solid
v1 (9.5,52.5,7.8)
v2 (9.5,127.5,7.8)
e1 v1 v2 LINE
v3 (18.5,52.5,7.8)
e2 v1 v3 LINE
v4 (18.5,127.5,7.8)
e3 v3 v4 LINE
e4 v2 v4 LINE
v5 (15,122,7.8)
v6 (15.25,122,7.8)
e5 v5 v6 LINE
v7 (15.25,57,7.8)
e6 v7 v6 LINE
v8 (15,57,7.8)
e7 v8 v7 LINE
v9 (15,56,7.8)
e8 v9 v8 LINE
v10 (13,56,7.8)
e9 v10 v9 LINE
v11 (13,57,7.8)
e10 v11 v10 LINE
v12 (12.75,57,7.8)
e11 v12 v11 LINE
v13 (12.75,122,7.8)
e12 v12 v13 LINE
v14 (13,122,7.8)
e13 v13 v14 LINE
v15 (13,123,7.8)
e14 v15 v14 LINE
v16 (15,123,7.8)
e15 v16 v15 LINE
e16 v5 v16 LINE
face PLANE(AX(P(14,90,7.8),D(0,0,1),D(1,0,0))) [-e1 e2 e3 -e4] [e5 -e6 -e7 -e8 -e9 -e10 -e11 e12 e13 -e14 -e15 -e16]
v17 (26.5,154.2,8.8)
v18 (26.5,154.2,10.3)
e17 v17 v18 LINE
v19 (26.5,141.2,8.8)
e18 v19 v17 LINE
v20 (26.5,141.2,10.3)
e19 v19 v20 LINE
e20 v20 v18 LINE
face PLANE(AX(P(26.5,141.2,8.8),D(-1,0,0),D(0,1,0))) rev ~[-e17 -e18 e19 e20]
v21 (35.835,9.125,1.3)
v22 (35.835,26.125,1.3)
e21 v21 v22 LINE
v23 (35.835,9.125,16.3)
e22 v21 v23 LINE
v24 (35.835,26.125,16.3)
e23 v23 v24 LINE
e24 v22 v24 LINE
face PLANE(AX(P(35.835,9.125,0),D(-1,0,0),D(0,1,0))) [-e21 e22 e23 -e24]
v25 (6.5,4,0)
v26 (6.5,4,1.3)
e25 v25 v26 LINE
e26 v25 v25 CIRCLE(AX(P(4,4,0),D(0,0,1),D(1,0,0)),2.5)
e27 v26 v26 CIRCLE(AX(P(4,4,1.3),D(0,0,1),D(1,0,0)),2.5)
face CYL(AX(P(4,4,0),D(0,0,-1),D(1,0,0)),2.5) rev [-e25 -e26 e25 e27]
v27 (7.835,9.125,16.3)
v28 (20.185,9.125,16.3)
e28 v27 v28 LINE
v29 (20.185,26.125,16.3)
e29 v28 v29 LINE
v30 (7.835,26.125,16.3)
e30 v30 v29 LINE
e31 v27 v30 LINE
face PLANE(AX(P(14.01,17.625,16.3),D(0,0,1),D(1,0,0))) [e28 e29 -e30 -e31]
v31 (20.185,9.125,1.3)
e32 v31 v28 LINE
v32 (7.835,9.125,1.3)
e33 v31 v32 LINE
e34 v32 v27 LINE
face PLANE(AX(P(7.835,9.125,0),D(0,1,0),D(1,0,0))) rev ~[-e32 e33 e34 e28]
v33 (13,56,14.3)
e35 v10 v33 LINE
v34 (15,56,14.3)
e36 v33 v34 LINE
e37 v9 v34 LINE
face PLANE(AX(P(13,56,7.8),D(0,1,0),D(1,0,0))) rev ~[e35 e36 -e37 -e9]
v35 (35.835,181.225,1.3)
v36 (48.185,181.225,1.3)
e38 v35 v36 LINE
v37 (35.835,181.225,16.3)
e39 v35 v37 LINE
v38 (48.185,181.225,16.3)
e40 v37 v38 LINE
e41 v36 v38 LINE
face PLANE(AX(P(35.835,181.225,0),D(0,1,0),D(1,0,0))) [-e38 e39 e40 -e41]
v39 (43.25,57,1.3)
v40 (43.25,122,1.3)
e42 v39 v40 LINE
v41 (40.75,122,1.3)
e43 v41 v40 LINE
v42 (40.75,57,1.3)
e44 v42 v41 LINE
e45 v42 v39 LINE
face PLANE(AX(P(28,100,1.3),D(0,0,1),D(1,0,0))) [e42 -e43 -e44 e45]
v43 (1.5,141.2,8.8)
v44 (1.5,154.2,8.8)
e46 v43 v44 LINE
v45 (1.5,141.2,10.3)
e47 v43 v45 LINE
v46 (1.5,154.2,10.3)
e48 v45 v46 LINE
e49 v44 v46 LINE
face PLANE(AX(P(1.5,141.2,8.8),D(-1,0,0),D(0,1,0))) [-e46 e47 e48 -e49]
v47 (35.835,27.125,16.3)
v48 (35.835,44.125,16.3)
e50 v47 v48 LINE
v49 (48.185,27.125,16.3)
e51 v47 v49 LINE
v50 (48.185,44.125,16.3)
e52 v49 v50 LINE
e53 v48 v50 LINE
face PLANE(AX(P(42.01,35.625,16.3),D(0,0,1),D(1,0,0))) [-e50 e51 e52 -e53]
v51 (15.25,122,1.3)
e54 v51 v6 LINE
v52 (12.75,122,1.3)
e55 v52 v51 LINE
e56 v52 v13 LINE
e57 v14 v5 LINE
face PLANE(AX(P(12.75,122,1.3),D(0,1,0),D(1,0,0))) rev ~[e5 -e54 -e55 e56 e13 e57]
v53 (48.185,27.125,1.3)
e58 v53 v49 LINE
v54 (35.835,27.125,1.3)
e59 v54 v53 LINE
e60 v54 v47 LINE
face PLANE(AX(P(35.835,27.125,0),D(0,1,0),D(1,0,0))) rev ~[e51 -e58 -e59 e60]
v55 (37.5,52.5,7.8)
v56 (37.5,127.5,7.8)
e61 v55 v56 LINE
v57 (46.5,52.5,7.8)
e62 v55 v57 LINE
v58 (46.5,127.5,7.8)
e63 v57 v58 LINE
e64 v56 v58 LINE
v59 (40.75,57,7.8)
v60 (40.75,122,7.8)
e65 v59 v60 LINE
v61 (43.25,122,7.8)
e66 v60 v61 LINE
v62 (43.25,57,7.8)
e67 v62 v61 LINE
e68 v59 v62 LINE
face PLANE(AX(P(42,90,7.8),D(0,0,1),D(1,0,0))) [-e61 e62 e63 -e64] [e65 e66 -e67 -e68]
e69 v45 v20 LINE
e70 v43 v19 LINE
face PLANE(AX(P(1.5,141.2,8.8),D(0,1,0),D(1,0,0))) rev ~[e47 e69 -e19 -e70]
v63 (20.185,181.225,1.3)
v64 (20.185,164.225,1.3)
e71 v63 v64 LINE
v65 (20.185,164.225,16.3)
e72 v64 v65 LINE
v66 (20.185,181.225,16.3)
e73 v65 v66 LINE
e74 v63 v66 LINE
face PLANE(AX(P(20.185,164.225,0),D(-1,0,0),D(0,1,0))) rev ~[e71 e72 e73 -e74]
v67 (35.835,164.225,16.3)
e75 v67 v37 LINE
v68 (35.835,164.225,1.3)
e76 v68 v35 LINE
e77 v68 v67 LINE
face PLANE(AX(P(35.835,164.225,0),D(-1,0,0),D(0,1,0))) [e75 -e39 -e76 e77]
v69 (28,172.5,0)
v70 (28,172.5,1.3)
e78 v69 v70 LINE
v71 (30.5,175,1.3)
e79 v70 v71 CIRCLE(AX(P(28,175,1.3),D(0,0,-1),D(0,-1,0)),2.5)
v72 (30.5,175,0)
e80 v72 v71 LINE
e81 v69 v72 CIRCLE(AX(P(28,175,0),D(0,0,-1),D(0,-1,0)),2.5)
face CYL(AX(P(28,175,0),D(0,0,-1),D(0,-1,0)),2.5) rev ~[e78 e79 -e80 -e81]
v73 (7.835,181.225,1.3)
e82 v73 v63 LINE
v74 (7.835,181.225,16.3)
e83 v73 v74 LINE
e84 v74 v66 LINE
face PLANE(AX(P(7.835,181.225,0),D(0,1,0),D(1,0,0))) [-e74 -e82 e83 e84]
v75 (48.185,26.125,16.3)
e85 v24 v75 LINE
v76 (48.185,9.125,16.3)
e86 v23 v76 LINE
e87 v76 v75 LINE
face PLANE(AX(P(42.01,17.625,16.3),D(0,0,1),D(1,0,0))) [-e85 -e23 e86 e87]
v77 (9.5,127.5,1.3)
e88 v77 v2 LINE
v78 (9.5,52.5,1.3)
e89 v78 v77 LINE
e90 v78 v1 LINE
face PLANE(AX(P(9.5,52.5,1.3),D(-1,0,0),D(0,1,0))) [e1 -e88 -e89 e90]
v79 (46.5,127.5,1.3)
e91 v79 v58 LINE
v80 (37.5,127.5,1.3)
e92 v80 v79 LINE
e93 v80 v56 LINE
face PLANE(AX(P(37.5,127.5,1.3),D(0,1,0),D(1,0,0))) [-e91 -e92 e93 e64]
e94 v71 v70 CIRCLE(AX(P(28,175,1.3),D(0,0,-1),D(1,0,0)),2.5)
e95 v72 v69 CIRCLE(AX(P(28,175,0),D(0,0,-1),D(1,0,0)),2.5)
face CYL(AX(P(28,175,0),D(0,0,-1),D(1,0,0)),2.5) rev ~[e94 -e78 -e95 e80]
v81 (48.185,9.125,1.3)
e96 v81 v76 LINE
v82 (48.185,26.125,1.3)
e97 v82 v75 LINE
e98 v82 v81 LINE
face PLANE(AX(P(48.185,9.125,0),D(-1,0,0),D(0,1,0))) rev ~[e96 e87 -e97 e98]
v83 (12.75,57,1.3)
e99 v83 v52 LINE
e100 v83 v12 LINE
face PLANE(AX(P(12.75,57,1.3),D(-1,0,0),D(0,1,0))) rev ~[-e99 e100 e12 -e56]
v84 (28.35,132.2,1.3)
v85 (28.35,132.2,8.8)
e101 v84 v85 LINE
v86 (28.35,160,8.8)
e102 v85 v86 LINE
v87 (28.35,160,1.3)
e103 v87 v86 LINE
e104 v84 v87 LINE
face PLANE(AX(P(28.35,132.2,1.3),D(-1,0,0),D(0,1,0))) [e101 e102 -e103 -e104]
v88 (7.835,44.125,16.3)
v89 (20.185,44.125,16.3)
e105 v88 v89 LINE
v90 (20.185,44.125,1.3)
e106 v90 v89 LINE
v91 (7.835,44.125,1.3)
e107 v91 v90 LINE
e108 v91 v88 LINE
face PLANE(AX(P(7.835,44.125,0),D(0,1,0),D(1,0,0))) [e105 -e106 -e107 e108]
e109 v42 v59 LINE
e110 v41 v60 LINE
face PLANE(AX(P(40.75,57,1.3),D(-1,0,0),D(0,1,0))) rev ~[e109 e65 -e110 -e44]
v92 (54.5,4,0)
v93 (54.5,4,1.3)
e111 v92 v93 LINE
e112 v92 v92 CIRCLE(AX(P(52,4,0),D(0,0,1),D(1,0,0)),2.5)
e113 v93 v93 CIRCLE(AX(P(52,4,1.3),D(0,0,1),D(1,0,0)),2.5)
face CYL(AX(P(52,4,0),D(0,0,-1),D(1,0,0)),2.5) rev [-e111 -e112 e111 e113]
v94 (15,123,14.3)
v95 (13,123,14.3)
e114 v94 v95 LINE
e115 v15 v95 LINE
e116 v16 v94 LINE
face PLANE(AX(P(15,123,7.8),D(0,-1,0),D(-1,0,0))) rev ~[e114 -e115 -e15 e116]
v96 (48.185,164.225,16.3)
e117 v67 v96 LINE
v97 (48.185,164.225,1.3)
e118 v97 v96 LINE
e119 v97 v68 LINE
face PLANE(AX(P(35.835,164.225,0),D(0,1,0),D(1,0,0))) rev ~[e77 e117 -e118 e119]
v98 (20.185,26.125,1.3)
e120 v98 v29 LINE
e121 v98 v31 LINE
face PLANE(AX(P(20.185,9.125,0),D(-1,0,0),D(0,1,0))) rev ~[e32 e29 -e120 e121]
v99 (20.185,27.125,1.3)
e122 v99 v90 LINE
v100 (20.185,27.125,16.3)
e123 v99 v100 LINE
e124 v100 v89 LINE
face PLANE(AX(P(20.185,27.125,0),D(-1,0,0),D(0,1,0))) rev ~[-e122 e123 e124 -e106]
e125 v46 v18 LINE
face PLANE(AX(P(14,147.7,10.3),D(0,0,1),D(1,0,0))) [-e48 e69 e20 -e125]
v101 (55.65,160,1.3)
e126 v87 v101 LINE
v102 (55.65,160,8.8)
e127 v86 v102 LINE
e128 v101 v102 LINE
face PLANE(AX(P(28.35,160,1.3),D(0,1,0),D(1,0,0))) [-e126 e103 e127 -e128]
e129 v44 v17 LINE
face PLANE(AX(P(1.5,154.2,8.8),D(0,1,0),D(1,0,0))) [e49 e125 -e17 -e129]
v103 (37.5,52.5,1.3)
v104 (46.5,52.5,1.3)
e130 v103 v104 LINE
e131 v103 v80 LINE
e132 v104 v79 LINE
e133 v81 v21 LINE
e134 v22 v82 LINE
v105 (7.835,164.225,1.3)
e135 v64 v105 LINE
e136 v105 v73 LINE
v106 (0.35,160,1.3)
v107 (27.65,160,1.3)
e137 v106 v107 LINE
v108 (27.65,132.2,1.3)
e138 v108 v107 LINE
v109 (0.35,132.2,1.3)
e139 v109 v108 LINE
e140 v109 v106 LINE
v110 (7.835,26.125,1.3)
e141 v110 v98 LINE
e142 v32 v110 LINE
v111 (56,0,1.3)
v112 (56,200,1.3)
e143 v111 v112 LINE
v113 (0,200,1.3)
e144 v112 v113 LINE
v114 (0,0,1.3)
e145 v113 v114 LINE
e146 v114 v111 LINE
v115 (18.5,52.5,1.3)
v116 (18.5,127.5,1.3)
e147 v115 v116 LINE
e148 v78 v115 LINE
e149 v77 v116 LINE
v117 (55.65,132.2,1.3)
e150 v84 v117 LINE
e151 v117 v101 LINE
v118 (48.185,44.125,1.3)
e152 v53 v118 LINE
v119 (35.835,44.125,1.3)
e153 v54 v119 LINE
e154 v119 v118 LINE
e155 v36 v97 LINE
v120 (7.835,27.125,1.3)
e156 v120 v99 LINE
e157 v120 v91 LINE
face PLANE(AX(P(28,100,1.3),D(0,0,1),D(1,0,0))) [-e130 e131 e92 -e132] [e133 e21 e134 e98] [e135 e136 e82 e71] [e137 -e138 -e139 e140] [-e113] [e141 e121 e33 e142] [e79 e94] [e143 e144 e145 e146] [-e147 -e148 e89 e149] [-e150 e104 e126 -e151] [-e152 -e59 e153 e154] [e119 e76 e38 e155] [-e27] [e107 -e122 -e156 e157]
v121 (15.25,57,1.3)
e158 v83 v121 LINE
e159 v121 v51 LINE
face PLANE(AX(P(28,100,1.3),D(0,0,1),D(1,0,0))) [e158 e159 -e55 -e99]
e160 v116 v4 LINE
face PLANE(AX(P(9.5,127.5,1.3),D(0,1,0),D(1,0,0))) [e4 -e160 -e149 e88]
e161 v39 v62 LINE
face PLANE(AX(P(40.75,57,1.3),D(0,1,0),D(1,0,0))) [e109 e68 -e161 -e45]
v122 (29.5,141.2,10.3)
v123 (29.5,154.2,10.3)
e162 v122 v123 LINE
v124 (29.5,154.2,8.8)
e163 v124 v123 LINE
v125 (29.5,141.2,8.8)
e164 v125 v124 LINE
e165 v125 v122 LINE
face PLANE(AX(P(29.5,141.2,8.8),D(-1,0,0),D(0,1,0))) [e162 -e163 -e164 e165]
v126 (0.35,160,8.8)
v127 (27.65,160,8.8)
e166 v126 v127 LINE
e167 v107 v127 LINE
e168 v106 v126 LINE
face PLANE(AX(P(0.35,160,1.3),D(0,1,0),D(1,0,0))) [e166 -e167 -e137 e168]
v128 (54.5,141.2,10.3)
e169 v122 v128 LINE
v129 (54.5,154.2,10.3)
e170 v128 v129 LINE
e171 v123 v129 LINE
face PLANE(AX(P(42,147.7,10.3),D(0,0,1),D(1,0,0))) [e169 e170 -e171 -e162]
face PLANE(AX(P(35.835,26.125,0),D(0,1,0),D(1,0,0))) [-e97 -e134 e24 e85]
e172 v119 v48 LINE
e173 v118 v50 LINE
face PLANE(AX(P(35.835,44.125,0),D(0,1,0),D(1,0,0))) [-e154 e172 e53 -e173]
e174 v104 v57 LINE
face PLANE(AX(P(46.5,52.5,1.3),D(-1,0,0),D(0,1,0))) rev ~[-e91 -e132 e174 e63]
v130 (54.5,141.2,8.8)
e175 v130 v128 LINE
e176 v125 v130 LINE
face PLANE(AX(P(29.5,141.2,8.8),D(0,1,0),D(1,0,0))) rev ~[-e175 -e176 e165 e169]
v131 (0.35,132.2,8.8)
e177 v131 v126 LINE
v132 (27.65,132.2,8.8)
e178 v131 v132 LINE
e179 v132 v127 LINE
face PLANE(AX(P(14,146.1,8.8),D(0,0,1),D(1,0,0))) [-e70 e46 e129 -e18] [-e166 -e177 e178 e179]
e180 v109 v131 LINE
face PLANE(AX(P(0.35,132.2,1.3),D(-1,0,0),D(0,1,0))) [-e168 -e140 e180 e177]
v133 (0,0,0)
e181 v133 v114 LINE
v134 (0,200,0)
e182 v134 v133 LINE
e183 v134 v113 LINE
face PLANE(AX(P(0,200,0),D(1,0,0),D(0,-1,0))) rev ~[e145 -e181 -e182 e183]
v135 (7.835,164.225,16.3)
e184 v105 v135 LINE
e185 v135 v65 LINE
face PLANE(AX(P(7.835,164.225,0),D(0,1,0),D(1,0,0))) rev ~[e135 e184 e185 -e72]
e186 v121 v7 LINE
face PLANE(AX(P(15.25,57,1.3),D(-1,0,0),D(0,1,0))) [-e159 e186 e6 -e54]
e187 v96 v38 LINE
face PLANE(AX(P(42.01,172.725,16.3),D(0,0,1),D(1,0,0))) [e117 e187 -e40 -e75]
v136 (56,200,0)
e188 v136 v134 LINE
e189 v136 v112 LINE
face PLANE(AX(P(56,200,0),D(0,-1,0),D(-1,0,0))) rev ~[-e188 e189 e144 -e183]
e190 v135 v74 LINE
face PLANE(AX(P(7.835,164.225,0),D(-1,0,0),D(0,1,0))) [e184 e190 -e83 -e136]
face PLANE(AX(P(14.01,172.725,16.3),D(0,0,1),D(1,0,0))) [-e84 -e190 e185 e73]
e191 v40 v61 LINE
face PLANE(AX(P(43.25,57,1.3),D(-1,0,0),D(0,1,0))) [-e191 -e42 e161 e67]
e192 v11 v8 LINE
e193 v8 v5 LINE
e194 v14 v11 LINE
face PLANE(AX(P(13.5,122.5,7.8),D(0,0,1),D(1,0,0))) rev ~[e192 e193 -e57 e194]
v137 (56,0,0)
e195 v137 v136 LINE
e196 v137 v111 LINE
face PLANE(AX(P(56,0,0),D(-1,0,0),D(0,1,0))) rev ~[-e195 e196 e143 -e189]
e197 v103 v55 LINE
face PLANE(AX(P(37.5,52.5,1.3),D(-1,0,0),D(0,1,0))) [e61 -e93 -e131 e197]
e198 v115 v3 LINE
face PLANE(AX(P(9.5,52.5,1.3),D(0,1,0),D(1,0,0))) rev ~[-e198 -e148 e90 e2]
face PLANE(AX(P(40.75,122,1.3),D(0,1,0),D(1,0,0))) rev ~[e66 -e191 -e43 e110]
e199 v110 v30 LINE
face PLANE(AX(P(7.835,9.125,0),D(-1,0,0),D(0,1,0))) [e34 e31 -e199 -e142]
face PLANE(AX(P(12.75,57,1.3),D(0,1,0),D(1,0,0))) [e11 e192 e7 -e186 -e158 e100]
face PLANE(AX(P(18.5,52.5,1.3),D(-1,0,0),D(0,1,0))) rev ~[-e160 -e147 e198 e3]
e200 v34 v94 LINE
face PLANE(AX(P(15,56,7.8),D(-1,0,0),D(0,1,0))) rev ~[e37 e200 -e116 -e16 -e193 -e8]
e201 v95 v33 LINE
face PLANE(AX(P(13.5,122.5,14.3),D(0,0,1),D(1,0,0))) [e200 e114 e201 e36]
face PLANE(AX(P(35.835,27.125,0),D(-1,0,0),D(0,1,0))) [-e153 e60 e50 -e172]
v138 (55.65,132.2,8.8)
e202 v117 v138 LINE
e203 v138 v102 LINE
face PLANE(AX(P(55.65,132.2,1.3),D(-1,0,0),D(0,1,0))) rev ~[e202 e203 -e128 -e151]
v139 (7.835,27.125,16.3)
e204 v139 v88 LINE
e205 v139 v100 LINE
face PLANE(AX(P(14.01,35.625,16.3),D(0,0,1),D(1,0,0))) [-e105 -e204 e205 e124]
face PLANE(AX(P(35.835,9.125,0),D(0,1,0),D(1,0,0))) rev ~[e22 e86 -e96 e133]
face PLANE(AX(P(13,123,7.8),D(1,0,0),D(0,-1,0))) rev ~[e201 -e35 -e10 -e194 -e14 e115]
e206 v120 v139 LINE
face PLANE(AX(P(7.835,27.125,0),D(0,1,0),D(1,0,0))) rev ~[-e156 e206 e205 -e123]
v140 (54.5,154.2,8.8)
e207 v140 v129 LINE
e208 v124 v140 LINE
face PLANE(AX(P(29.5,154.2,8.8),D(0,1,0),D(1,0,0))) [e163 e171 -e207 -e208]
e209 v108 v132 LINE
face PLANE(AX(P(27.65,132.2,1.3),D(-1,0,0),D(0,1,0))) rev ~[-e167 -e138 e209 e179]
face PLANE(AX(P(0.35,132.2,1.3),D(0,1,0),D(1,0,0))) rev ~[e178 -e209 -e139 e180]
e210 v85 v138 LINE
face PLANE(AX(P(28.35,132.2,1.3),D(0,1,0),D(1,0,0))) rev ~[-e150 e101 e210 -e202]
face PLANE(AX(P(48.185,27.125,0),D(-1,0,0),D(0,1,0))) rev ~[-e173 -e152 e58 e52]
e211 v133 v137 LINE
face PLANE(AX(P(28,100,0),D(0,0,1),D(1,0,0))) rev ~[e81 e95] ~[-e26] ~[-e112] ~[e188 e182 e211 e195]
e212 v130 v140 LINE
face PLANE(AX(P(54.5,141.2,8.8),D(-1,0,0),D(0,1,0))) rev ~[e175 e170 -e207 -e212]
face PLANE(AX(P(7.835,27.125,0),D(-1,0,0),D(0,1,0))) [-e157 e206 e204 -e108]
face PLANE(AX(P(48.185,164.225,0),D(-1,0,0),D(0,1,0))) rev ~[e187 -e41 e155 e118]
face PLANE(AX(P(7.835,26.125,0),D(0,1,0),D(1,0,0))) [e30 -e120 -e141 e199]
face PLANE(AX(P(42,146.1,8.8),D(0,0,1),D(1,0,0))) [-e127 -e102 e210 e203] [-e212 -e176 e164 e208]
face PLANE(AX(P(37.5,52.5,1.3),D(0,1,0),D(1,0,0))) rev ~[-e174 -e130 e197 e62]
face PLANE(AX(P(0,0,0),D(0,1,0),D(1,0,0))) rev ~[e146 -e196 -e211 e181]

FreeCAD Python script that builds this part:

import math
import FreeCAD as App
import Part
import Sketcher

doc = App.newDocument("Part")
body = doc.addObject("PartDesign::Body", "Body")

sketch1 = body.newObject("Sketcher::SketchObject", "Sketch")
sketch1.AttachmentSupport = (doc.getObject("XY_Plane"), [""])
sketch1.MapMode = "FlatFace"
sketch1.addGeometry([
    Part.LineSegment(App.Vector(0, 200, 0), App.Vector(0, 0, 0)),
    Part.LineSegment(App.Vector(0, 0, 0), App.Vector(56, 0, 0)),
    Part.LineSegment(App.Vector(56, 0, 0), App.Vector(56, 200, 0)),
    Part.LineSegment(App.Vector(56, 200, 0), App.Vector(0, 200, 0)),
    Part.Circle(App.Vector(4, 4, 0), App.Vector(0, 0, 1), 2.5),
    Part.LineSegment(App.Vector(20.2, 26.1, 0), App.Vector(20.2, 9.1, 0)),
    Part.LineSegment(App.Vector(20.2, 9.1, 0), App.Vector(7.8, 9.1, 0)),
    Part.LineSegment(App.Vector(7.8, 9.1, 0), App.Vector(7.8, 26.1, 0)),
    Part.LineSegment(App.Vector(7.8, 26.1, 0), App.Vector(20.2, 26.1, 0)),
    Part.LineSegment(App.Vector(20.2, 27.1, 0), App.Vector(7.8, 27.1, 0)),
    Part.LineSegment(App.Vector(7.8, 27.1, 0), App.Vector(7.8, 44.1, 0)),
    Part.LineSegment(App.Vector(7.8, 44.1, 0), App.Vector(20.2, 44.1, 0)),
    Part.LineSegment(App.Vector(20.2, 44.1, 0), App.Vector(20.2, 27.1, 0)),
    Part.LineSegment(App.Vector(48.2, 26.1, 0), App.Vector(48.2, 9.1, 0)),
    Part.LineSegment(App.Vector(48.2, 9.1, 0), App.Vector(35.8, 9.1, 0)),
    Part.LineSegment(App.Vector(35.8, 9.1, 0), App.Vector(35.8, 26.1, 0)),
    Part.LineSegment(App.Vector(35.8, 26.1, 0), App.Vector(48.2, 26.1, 0)),
    Part.Circle(App.Vector(52, 4, 0), App.Vector(0, 0, 1), 2.5),
    Part.LineSegment(App.Vector(48.2, 27.1, 0), App.Vector(35.8, 27.1, 0)),
    Part.LineSegment(App.Vector(35.8, 27.1, 0), App.Vector(35.8, 44.1, 0)),
    Part.LineSegment(App.Vector(35.8, 44.1, 0), App.Vector(48.2, 44.1, 0)),
    Part.LineSegment(App.Vector(48.2, 44.1, 0), App.Vector(48.2, 27.1, 0)),
    Part.LineSegment(App.Vector(20.2, 181.2, 0), App.Vector(20.2, 164.2, 0)),
    Part.LineSegment(App.Vector(20.2, 164.2, 0), App.Vector(7.8, 164.2, 0)),
    Part.LineSegment(App.Vector(7.8, 164.2, 0), App.Vector(7.8, 181.2, 0)),
    Part.LineSegment(App.Vector(7.8, 181.2, 0), App.Vector(20.2, 181.2, 0)),
    Part.ArcOfCircle(Part.Circle(App.Vector(28, 175, 0), App.Vector(0, 0, 1), 2.5), math.radians(0), math.radians(270)),
    Part.ArcOfCircle(Part.Circle(App.Vector(28, 175, 0), App.Vector(0, 0, 1), 2.5), math.radians(-90), math.radians(0)),
    Part.LineSegment(App.Vector(48.2, 181.2, 0), App.Vector(48.2, 164.2, 0)),
    Part.LineSegment(App.Vector(48.2, 164.2, 0), App.Vector(35.8, 164.2, 0)),
    Part.LineSegment(App.Vector(35.8, 164.2, 0), App.Vector(35.8, 181.2, 0)),
    Part.LineSegment(App.Vector(35.8, 181.2, 0), App.Vector(48.2, 181.2, 0)),
], False)
sketch1.addConstraint([
    Sketcher.Constraint("Coincident", 0, 2, 1, 1),
    Sketcher.Constraint("Coincident", 1, 2, 2, 1),
    Sketcher.Constraint("Coincident", 2, 2, 3, 1),
    Sketcher.Constraint("Coincident", 3, 2, 0, 1),
    Sketcher.Constraint("Coincident", 5, 2, 6, 1),
    Sketcher.Constraint("Coincident", 6, 2, 7, 1),
    Sketcher.Constraint("Coincident", 7, 2, 8, 1),
    Sketcher.Constraint("Coincident", 8, 2, 5, 1),
    Sketcher.Constraint("Coincident", 9, 2, 10, 1),
    Sketcher.Constraint("Coincident", 10, 2, 11, 1),
    Sketcher.Constraint("Coincident", 11, 2, 12, 1),
    Sketcher.Constraint("Coincident", 12, 2, 9, 1),
    Sketcher.Constraint("Coincident", 13, 2, 14, 1),
    Sketcher.Constraint("Coincident", 14, 2, 15, 1),
    Sketcher.Constraint("Coincident", 15, 2, 16, 1),
    Sketcher.Constraint("Coincident", 16, 2, 13, 1),
    Sketcher.Constraint("Coincident", 18, 2, 19, 1),
    Sketcher.Constraint("Coincident", 19, 2, 20, 1),
    Sketcher.Constraint("Coincident", 20, 2, 21, 1),
    Sketcher.Constraint("Coincident", 21, 2, 18, 1),
    Sketcher.Constraint("Coincident", 22, 2, 23, 1),
    Sketcher.Constraint("Coincident", 23, 2, 24, 1),
    Sketcher.Constraint("Coincident", 24, 2, 25, 1),
    Sketcher.Constraint("Coincident", 25, 2, 22, 1),
    Sketcher.Constraint("Tangent", 26, 1, 27, 2),
    Sketcher.Constraint("Coincident", 27, 1, 26, 2),
    Sketcher.Constraint("Coincident", 28, 2, 29, 1),
    Sketcher.Constraint("Coincident", 29, 2, 30, 1),
    Sketcher.Constraint("Coincident", 30, 2, 31, 1),
    Sketcher.Constraint("Coincident", 31, 2, 28, 1),
    Sketcher.Constraint("Vertical", 0),
    Sketcher.Constraint("Horizontal", 1),
    Sketcher.Constraint("Vertical", 2),
    Sketcher.Constraint("Horizontal", 3),
    Sketcher.Constraint("Vertical", 5),
    Sketcher.Constraint("Horizontal", 6),
    Sketcher.Constraint("Vertical", 7),
    Sketcher.Constraint("Horizontal", 8),
    Sketcher.Constraint("Horizontal", 9),
    Sketcher.Constraint("Vertical", 10),
    Sketcher.Constraint("Horizontal", 11),
    Sketcher.Constraint("Vertical", 12),
    Sketcher.Constraint("Vertical", 13),
    Sketcher.Constraint("Horizontal", 14),
    Sketcher.Constraint("Vertical", 15),
    Sketcher.Constraint("Horizontal", 16),
    Sketcher.Constraint("Horizontal", 18),
    Sketcher.Constraint("Vertical", 19),
    Sketcher.Constraint("Horizontal", 20),
    Sketcher.Constraint("Vertical", 21),
    Sketcher.Constraint("Vertical", 22),
    Sketcher.Constraint("Horizontal", 23),
    Sketcher.Constraint("Vertical", 24),
    Sketcher.Constraint("Horizontal", 25),
    Sketcher.Constraint("Vertical", 28),
    Sketcher.Constraint("Horizontal", 29),
    Sketcher.Constraint("Vertical", 30),
    Sketcher.Constraint("Horizontal", 31),
    Sketcher.Constraint("Coincident", 0, 2, -1, 1),
    Sketcher.Constraint("Equal", 4, 17),
    Sketcher.Constraint("Equal", 17, 26),
    Sketcher.Constraint("Horizontal", 4, 3, 17, 3),
    Sketcher.Constraint("Horizontal", 6, 2, 13, 2),
    Sketcher.Constraint("Horizontal", 8, 2, 15, 2),
    Sketcher.Constraint("Horizontal", 12, 2, 18, 2),
    Sketcher.Constraint("Horizontal", 11, 2, 19, 2),
    Sketcher.Constraint("Horizontal", 27, 3, 26, 1),
    Sketcher.Constraint("Horizontal", 23, 2, 28, 2),
    Sketcher.Constraint("Horizontal", 25, 2, 30, 2),
    Sketcher.Constraint("Vertical", 7, 2, 9, 2),
    Sketcher.Constraint("Vertical", 8, 2, 11, 2),
    Sketcher.Constraint("Vertical", 15, 2, 18, 2),
    Sketcher.Constraint("Vertical", 16, 2, 20, 2),
    Sketcher.Constraint("Vertical", 12, 2, 22, 2),
    Sketcher.Constraint("Vertical", 10, 2, 23, 2),
    Sketcher.Constraint("Vertical", 26, 3, 27, 1),
    Sketcher.Constraint("Vertical", 21, 2, 28, 2),
    Sketcher.Constraint("Vertical", 19, 2, 29, 2),
    Sketcher.Constraint("Equal", 11, 14),
    Sketcher.Constraint("Equal", 7, 10),
    Sketcher.Constraint("Equal", 21, 22),
    Sketcher.Constraint("Diameter", 4, 5.0),
    Sketcher.Constraint("DistanceX", 1, 1, 1, 2, 56.0),
    Sketcher.Constraint("DistanceY", 0, 2, 0, 1, 200.0),
    Sketcher.Constraint("DistanceY", 5, 2, 5, 1, 17.0),
    Sketcher.Constraint("DistanceX", -1, 1, 4, 3, 4.0),
    Sketcher.Constraint("DistanceY", -1, 1, 4, 3, 4.0),
    Sketcher.Constraint("DistanceX", -1, 1, 17, 3, 52.0),
    Sketcher.Constraint("DistanceX", -1, 1, 26, 3, 28.0),
    Sketcher.Constraint("DistanceY", -1, 1, 26, 3, 175.0),
    Sketcher.Constraint("DistanceY", 7, 2, 9, 2, 1.0),
    Sketcher.Constraint("DistanceX", 5, 2, 13, 2, 28.0),
    Sketcher.Constraint("DistanceX", 6, 2, 6, 1, 12.35),
    Sketcher.Constraint("DistanceY", 11, 2, 22, 2, 120.1),
    Sketcher.Constraint("DistanceX", -1, 1, 5, 2, 20.185),
    Sketcher.Constraint("DistanceY", -1, 1, 5, 2, 9.125),
])
pad1 = body.newObject("PartDesign::Pad", "Pad")
pad1.Profile = sketch1
pad1.Length = 1.3

sketch2 = body.newObject("Sketcher::SketchObject", "Sketch001")
sketch2.AttachmentSupport = (doc.getObject("XY_Plane"), [""])
sketch2.MapMode = "FlatFace"
sketch2.AttachmentOffset = App.Placement(App.Vector(0, 0, 1.3), App.Rotation())
sketch2.addGeometry([
    Part.LineSegment(App.Vector(8, 181, 0), App.Vector(8, 164, 0)),
    Part.LineSegment(App.Vector(8, 164, 0), App.Vector(20, 164, 0)),
    Part.LineSegment(App.Vector(20, 164, 0), App.Vector(20, 181, 0)),
    Part.LineSegment(App.Vector(20, 181, 0), App.Vector(8, 181, 0)),
    Part.LineSegment(App.Vector(36, 181, 0), App.Vector(36, 164, 0)),
    Part.LineSegment(App.Vector(36, 164, 0), App.Vector(48, 164, 0)),
    Part.LineSegment(App.Vector(48, 164, 0), App.Vector(48, 181, 0)),
    Part.LineSegment(App.Vector(48, 181, 0), App.Vector(36, 181, 0)),
    Part.LineSegment(App.Vector(36, 44, 0), App.Vector(36, 27, 0)),
    Part.LineSegment(App.Vector(36, 27, 0), App.Vector(48, 27, 0)),
    Part.LineSegment(App.Vector(48, 27, 0), App.Vector(48, 44, 0)),
    Part.LineSegment(App.Vector(48, 44, 0), App.Vector(36, 44, 0)),
    Part.LineSegment(App.Vector(36, 26, 0), App.Vector(36, 9, 0)),
    Part.LineSegment(App.Vector(36, 9, 0), App.Vector(48, 9, 0)),
    Part.LineSegment(App.Vector(48, 9, 0), App.Vector(48, 26, 0)),
    Part.LineSegment(App.Vector(48, 26, 0), App.Vector(36, 26, 0)),
    Part.LineSegment(App.Vector(8, 26, 0), App.Vector(8, 9, 0)),
    Part.LineSegment(App.Vector(8, 9, 0), App.Vector(20, 9, 0)),
    Part.LineSegment(App.Vector(20, 9, 0), App.Vector(20, 26, 0)),
    Part.LineSegment(App.Vector(20, 26, 0), App.Vector(8, 26, 0)),
    Part.LineSegment(App.Vector(8, 44, 0), App.Vector(8, 27, 0)),
    Part.LineSegment(App.Vector(8, 27, 0), App.Vector(20, 27, 0)),
    Part.LineSegment(App.Vector(20, 27, 0), App.Vector(20, 44, 0)),
    Part.LineSegment(App.Vector(20, 44, 0), App.Vector(8, 44, 0)),
], False)
sketch2.addConstraint([
    Sketcher.Constraint("Coincident", 0, 2, 1, 1),
    Sketcher.Constraint("Coincident", 1, 2, 2, 1),
    Sketcher.Constraint("Coincident", 2, 2, 3, 1),
    Sketcher.Constraint("Coincident", 3, 2, 0, 1),
    Sketcher.Constraint("Coincident", 4, 2, 5, 1),
    Sketcher.Constraint("Coincident", 5, 2, 6, 1),
    Sketcher.Constraint("Coincident", 6, 2, 7, 1),
    Sketcher.Constraint("Coincident", 7, 2, 4, 1),
    Sketcher.Constraint("Coincident", 8, 2, 9, 1),
    Sketcher.Constraint("Coincident", 9, 2, 10, 1),
    Sketcher.Constraint("Coincident", 10, 2, 11, 1),
    Sketcher.Constraint("Coincident", 11, 2, 8, 1),
    Sketcher.Constraint("Coincident", 12, 2, 13, 1),
    Sketcher.Constraint("Coincident", 13, 2, 14, 1),
    Sketcher.Constraint("Coincident", 14, 2, 15, 1),
    Sketcher.Constraint("Coincident", 15, 2, 12, 1),
    Sketcher.Constraint("Coincident", 16, 2, 17, 1),
    Sketcher.Constraint("Coincident", 17, 2, 18, 1),
    Sketcher.Constraint("Coincident", 18, 2, 19, 1),
    Sketcher.Constraint("Coincident", 19, 2, 16, 1),
    Sketcher.Constraint("Coincident", 20, 2, 21, 1),
    Sketcher.Constraint("Coincident", 21, 2, 22, 1),
    Sketcher.Constraint("Coincident", 22, 2, 23, 1),
    Sketcher.Constraint("Coincident", 23, 2, 20, 1),
    Sketcher.Constraint("Vertical", 0),
    Sketcher.Constraint("Horizontal", 1),
    Sketcher.Constraint("Vertical", 2),
    Sketcher.Constraint("Horizontal", 3),
    Sketcher.Constraint("Vertical", 4),
    Sketcher.Constraint("Horizontal", 5),
    Sketcher.Constraint("Vertical", 6),
    Sketcher.Constraint("Horizontal", 7),
    Sketcher.Constraint("Vertical", 8),
    Sketcher.Constraint("Horizontal", 9),
    Sketcher.Constraint("Vertical", 10),
    Sketcher.Constraint("Horizontal", 11),
    Sketcher.Constraint("Vertical", 12),
    Sketcher.Constraint("Horizontal", 13),
    Sketcher.Constraint("Vertical", 14),
    Sketcher.Constraint("Horizontal", 15),
    Sketcher.Constraint("Vertical", 16),
    Sketcher.Constraint("Horizontal", 17),
    Sketcher.Constraint("Vertical", 18),
    Sketcher.Constraint("Horizontal", 19),
    Sketcher.Constraint("Vertical", 20),
    Sketcher.Constraint("Horizontal", 21),
    Sketcher.Constraint("Vertical", 22),
    Sketcher.Constraint("Horizontal", 23),
    Sketcher.Constraint("Horizontal", 1, 2, 4, 2),
    Sketcher.Constraint("Horizontal", 3, 2, 6, 2),
    Sketcher.Constraint("Horizontal", 13, 2, 16, 2),
    Sketcher.Constraint("Horizontal", 15, 2, 18, 2),
    Sketcher.Constraint("Horizontal", 9, 2, 20, 2),
    Sketcher.Constraint("Horizontal", 11, 2, 22, 2),
    Sketcher.Constraint("Vertical", 7, 2, 8, 2),
    Sketcher.Constraint("Vertical", 6, 2, 9, 2),
    Sketcher.Constraint("Vertical", 11, 2, 12, 2),
    Sketcher.Constraint("Vertical", 10, 2, 13, 2),
    Sketcher.Constraint("Vertical", 3, 2, 16, 2),
    Sketcher.Constraint("Vertical", 2, 2, 17, 2),
    Sketcher.Constraint("Vertical", 19, 2, 20, 2),
    Sketcher.Constraint("Vertical", 18, 2, 21, 2),
    Sketcher.Constraint("Equal", 3, 5),
    Sketcher.Constraint("Equal", 6, 8),
    Sketcher.Constraint("Equal", 10, 12),
    Sketcher.Constraint("DistanceY", 0, 2, 0, 1, 17.0),
    Sketcher.Constraint("DistanceX", 0, 2, 4, 2, 28.0),
    Sketcher.Constraint("DistanceY", 12, 2, 8, 2, 18.0),
    Sketcher.Constraint("DistanceX", 1, 1, 1, 2, 12.35),
    Sketcher.Constraint("DistanceY", 8, 2, 4, 2, 137.1),
    Sketcher.Constraint("DistanceX", -1, 1, 0, 2, 7.835),
    Sketcher.Constraint("DistanceY", -1, 1, 0, 2, 164.225),
])
pad2 = body.newObject("PartDesign::Pad", "Pad001")
pad2.Profile = sketch2
pad2.Type = "TwoLengths"
pad2.Length = 15
pad2.Length2 = 1.3

sketch3 = body.newObject("Sketcher::SketchObject", "Sketch002")
sketch3.AttachmentSupport = (doc.getObject("XY_Plane"), [""])
sketch3.MapMode = "FlatFace"
sketch3.AttachmentOffset = App.Placement(App.Vector(0, 0, 1.3), App.Rotation())
sketch3.addGeometry([
    Part.LineSegment(App.Vector(0, 160, 0), App.Vector(0, 132, 0)),
    Part.LineSegment(App.Vector(0, 132, 0), App.Vector(28, 132, 0)),
    Part.LineSegment(App.Vector(28, 132, 0), App.Vector(28, 160, 0)),
    Part.LineSegment(App.Vector(28, 160, 0), App.Vector(0, 160, 0)),
    Part.LineSegment(App.Vector(28, 160, 0), App.Vector(28, 132, 0)),
    Part.LineSegment(App.Vector(28, 132, 0), App.Vector(56, 132, 0)),
    Part.LineSegment(App.Vector(56, 132, 0), App.Vector(56, 160, 0)),
    Part.LineSegment(App.Vector(56, 160, 0), App.Vector(28, 160, 0)),
], False)
sketch3.addConstraint([
    Sketcher.Constraint("Coincident", 0, 2, 1, 1),
    Sketcher.Constraint("Coincident", 1, 2, 2, 1),
    Sketcher.Constraint("Coincident", 2, 2, 3, 1),
    Sketcher.Constraint("Coincident", 3, 2, 0, 1),
    Sketcher.Constraint("Coincident", 4, 2, 5, 1),
    Sketcher.Constraint("Coincident", 5, 2, 6, 1),
    Sketcher.Constraint("Coincident", 6, 2, 7, 1),
    Sketcher.Constraint("Coincident", 7, 2, 4, 1),
    Sketcher.Constraint("Vertical", 0),
    Sketcher.Constraint("Horizontal", 1),
    Sketcher.Constraint("Vertical", 2),
    Sketcher.Constraint("Horizontal", 3),
    Sketcher.Constraint("Vertical", 4),
    Sketcher.Constraint("Horizontal", 5),
    Sketcher.Constraint("Vertical", 6),
    Sketcher.Constraint("Horizontal", 7),
    Sketcher.Constraint("Horizontal", 1, 2, 4, 2),
    Sketcher.Constraint("Horizontal", 3, 2, 6, 2),
    Sketcher.Constraint("Equal", 3, 5),
    Sketcher.Constraint("DistanceX", 1, 1, 1, 2, 27.3),
    Sketcher.Constraint("DistanceY", 0, 2, 0, 1, 27.8),
    Sketcher.Constraint("DistanceY", -1, 1, 2, 2, 160.0),
    Sketcher.Constraint("DistanceX", 0, 2, 4, 2, 28.0),
    Sketcher.Constraint("DistanceX", -1, 1, 0, 2, 0.35),
])
pad3 = body.newObject("PartDesign::Pad", "Pad002")
pad3.Profile = sketch3
pad3.Length = 7.5

sketch4 = body.newObject("Sketcher::SketchObject", "Sketch003")
sketch4.AttachmentSupport = (doc.getObject("XY_Plane"), [""])
sketch4.MapMode = "FlatFace"
sketch4.AttachmentOffset = App.Placement(App.Vector(0, 0, 8.8), App.Rotation())
sketch4.addGeometry([
    Part.LineSegment(App.Vector(2, 154, 0), App.Vector(2, 141, 0)),
    Part.LineSegment(App.Vector(2, 141, 0), App.Vector(26, 141, 0)),
    Part.LineSegment(App.Vector(26, 141, 0), App.Vector(26, 154, 0)),
    Part.LineSegment(App.Vector(26, 154, 0), App.Vector(2, 154, 0)),
    Part.LineSegment(App.Vector(30, 154, 0), App.Vector(30, 141, 0)),
    Part.LineSegment(App.Vector(30, 141, 0), App.Vector(54, 141, 0)),
    Part.LineSegment(App.Vector(54, 141, 0), App.Vector(54, 154, 0)),
    Part.LineSegment(App.Vector(54, 154, 0), App.Vector(30, 154, 0)),
], False)
sketch4.addConstraint([
    Sketcher.Constraint("Coincident", 0, 2, 1, 1),
    Sketcher.Constraint("Coincident", 1, 2, 2, 1),
    Sketcher.Constraint("Coincident", 2, 2, 3, 1),
    Sketcher.Constraint("Coincident", 3, 2, 0, 1),
    Sketcher.Constraint("Coincident", 4, 2, 5, 1),
    Sketcher.Constraint("Coincident", 5, 2, 6, 1),
    Sketcher.Constraint("Coincident", 6, 2, 7, 1),
    Sketcher.Constraint("Coincident", 7, 2, 4, 1),
    Sketcher.Constraint("Vertical", 0),
    Sketcher.Constraint("Horizontal", 1),
    Sketcher.Constraint("Vertical", 2),
    Sketcher.Constraint("Horizontal", 3),
    Sketcher.Constraint("Vertical", 4),
    Sketcher.Constraint("Horizontal", 5),
    Sketcher.Constraint("Vertical", 6),
    Sketcher.Constraint("Horizontal", 7),
    Sketcher.Constraint("Horizontal", 1, 2, 4, 2),
    Sketcher.Constraint("Horizontal", 3, 2, 6, 2),
    Sketcher.Constraint("Equal", 3, 5),
    Sketcher.Constraint("DistanceX", 1, 1, 1, 2, 25.0),
    Sketcher.Constraint("DistanceY", 0, 2, 0, 1, 13.0),
    Sketcher.Constraint("DistanceX", 1, 2, 4, 2, 3.0),
    Sketcher.Constraint("DistanceX", -1, 1, 0, 2, 1.5),
    Sketcher.Constraint("DistanceY", -1, 1, 0, 2, 141.2),
])
pad4 = body.newObject("PartDesign::Pad", "Pad003")
pad4.Profile = sketch4
pad4.Length = 1.5

sketch5 = body.newObject("Sketcher::SketchObject", "Sketch004")
sketch5.AttachmentSupport = (doc.getObject("XY_Plane"), [""])
sketch5.MapMode = "FlatFace"
sketch5.AttachmentOffset = App.Placement(App.Vector(0, 0, 1.3), App.Rotation())
sketch5.addGeometry([
    Part.LineSegment(App.Vector(9.5, 127.5, 0), App.Vector(9.5, 52.5, 0)),
    Part.LineSegment(App.Vector(9.5, 52.5, 0), App.Vector(18.5, 52.5, 0)),
    Part.LineSegment(App.Vector(18.5, 52.5, 0), App.Vector(18.5, 127.5, 0)),
    Part.LineSegment(App.Vector(18.5, 127.5, 0), App.Vector(9.5, 127.5, 0)),
    Part.LineSegment(App.Vector(15.2, 57, 0), App.Vector(12.8, 57, 0)),
    Part.LineSegment(App.Vector(12.8, 57, 0), App.Vector(12.8, 122, 0)),
    Part.LineSegment(App.Vector(12.8, 122, 0), App.Vector(15.2, 122, 0)),
    Part.LineSegment(App.Vector(15.2, 122, 0), App.Vector(15.2, 57, 0)),
    Part.LineSegment(App.Vector(37.5, 127.5, 0), App.Vector(37.5, 52.5, 0)),
    Part.LineSegment(App.Vector(37.5, 52.5, 0), App.Vector(46.5, 52.5, 0)),
    Part.LineSegment(App.Vector(46.5, 52.5, 0), App.Vector(46.5, 127.5, 0)),
    Part.LineSegment(App.Vector(46.5, 127.5, 0), App.Vector(37.5, 127.5, 0)),
    Part.LineSegment(App.Vector(43.2, 57, 0), App.Vector(40.8, 57, 0)),
    Part.LineSegment(App.Vector(40.8, 57, 0), App.Vector(40.8, 122, 0)),
    Part.LineSegment(App.Vector(40.8, 122, 0), App.Vector(43.2, 122, 0)),
    Part.LineSegment(App.Vector(43.2, 122, 0), App.Vector(43.2, 57, 0)),
], False)
sketch5.addConstraint([
    Sketcher.Constraint("Coincident", 0, 2, 1, 1),
    Sketcher.Constraint("Coincident", 1, 2, 2, 1),
    Sketcher.Constraint("Coincident", 2, 2, 3, 1),
    Sketcher.Constraint("Coincident", 3, 2, 0, 1),
    Sketcher.Constraint("Coincident", 4, 2, 5, 1),
    Sketcher.Constraint("Coincident", 5, 2, 6, 1),
    Sketcher.Constraint("Coincident", 6, 2, 7, 1),
    Sketcher.Constraint("Coincident", 7, 2, 4, 1),
    Sketcher.Constraint("Coincident", 8, 2, 9, 1),
    Sketcher.Constraint("Coincident", 9, 2, 10, 1),
    Sketcher.Constraint("Coincident", 10, 2, 11, 1),
    Sketcher.Constraint("Coincident", 11, 2, 8, 1),
    Sketcher.Constraint("Coincident", 12, 2, 13, 1),
    Sketcher.Constraint("Coincident", 13, 2, 14, 1),
    Sketcher.Constraint("Coincident", 14, 2, 15, 1),
    Sketcher.Constraint("Coincident", 15, 2, 12, 1),
    Sketcher.Constraint("Vertical", 0),
    Sketcher.Constraint("Horizontal", 1),
    Sketcher.Constraint("Vertical", 2),
    Sketcher.Constraint("Horizontal", 3),
    Sketcher.Constraint("Horizontal", 4),
    Sketcher.Constraint("Vertical", 5),
    Sketcher.Constraint("Horizontal", 6),
    Sketcher.Constraint("Vertical", 7),
    Sketcher.Constraint("Vertical", 8),
    Sketcher.Constraint("Horizontal", 9),
    Sketcher.Constraint("Vertical", 10),
    Sketcher.Constraint("Horizontal", 11),
    Sketcher.Constraint("Horizontal", 12),
    Sketcher.Constraint("Vertical", 13),
    Sketcher.Constraint("Horizontal", 14),
    Sketcher.Constraint("Vertical", 15),
    Sketcher.Constraint("Horizontal", 1, 2, 8, 2),
    Sketcher.Constraint("Horizontal", 3, 2, 10, 2),
    Sketcher.Constraint("Horizontal", 7, 2, 12, 2),
    Sketcher.Constraint("Horizontal", 6, 2, 13, 2),
    Sketcher.Constraint("Equal", 3, 9),
    Sketcher.Constraint("Equal", 6, 12),
    Sketcher.Constraint("DistanceX", 1, 1, 1, 2, 9.0),
    Sketcher.Constraint("DistanceY", 0, 2, 0, 1, 75.0),
    Sketcher.Constraint("DistanceY", 5, 1, 5, 2, 65.0),
    Sketcher.Constraint("DistanceX", 4, 2, 4, 1, 2.5),
    Sketcher.Constraint("DistanceY", -1, 1, 4, 2, 57.0),
    Sketcher.Constraint("DistanceX", 1, 2, 8, 2, 19.0),
    Sketcher.Constraint("DistanceX", 4, 2, 12, 2, 28.0),
    Sketcher.Constraint("DistanceX", -1, 1, 0, 2, 9.5),
    Sketcher.Constraint("DistanceY", -1, 1, 0, 2, 52.5),
    Sketcher.Constraint("DistanceX", -1, 1, 4, 2, 12.75),
])
pad5 = body.newObject("PartDesign::Pad", "Pad004")
pad5.Profile = sketch5
pad5.Length = 6.5

sketch6 = body.newObject("Sketcher::SketchObject", "Sketch005")
sketch6.AttachmentSupport = (doc.getObject("XY_Plane"), [""])
sketch6.MapMode = "FlatFace"
sketch6.AttachmentOffset = App.Placement(App.Vector(0, 0, 7.8), App.Rotation())
sketch6.addGeometry([
    Part.LineSegment(App.Vector(13, 123, 0), App.Vector(13, 56, 0)),
    Part.LineSegment(App.Vector(13, 56, 0), App.Vector(15, 56, 0)),
    Part.LineSegment(App.Vector(15, 56, 0), App.Vector(15, 123, 0)),
    Part.LineSegment(App.Vector(15, 123, 0), App.Vector(13, 123, 0)),
], False)
sketch6.addConstraint([
    Sketcher.Constraint("Coincident", 0, 2, 1, 1),
    Sketcher.Constraint("Coincident", 1, 2, 2, 1),
    Sketcher.Constraint("Coincident", 2, 2, 3, 1),
    Sketcher.Constraint("Coincident", 3, 2, 0, 1),
    Sketcher.Constraint("Vertical", 0),
    Sketcher.Constraint("Horizontal", 1),
    Sketcher.Constraint("Vertical", 2),
    Sketcher.Constraint("Horizontal", 3),
    Sketcher.Constraint("DistanceX", 1, 1, 1, 2, 2.0),
    Sketcher.Constraint("DistanceY", 0, 2, 0, 1, 67.0),
    Sketcher.Constraint("DistanceX", -1, 1, 0, 2, 13.0),
    Sketcher.Constraint("DistanceY", -1, 1, 0, 2, 56.0),
])
pad6 = body.newObject("PartDesign::Pad", "Pad005")
pad6.Profile = sketch6
pad6.Length = 6.5

doc.recompute()
